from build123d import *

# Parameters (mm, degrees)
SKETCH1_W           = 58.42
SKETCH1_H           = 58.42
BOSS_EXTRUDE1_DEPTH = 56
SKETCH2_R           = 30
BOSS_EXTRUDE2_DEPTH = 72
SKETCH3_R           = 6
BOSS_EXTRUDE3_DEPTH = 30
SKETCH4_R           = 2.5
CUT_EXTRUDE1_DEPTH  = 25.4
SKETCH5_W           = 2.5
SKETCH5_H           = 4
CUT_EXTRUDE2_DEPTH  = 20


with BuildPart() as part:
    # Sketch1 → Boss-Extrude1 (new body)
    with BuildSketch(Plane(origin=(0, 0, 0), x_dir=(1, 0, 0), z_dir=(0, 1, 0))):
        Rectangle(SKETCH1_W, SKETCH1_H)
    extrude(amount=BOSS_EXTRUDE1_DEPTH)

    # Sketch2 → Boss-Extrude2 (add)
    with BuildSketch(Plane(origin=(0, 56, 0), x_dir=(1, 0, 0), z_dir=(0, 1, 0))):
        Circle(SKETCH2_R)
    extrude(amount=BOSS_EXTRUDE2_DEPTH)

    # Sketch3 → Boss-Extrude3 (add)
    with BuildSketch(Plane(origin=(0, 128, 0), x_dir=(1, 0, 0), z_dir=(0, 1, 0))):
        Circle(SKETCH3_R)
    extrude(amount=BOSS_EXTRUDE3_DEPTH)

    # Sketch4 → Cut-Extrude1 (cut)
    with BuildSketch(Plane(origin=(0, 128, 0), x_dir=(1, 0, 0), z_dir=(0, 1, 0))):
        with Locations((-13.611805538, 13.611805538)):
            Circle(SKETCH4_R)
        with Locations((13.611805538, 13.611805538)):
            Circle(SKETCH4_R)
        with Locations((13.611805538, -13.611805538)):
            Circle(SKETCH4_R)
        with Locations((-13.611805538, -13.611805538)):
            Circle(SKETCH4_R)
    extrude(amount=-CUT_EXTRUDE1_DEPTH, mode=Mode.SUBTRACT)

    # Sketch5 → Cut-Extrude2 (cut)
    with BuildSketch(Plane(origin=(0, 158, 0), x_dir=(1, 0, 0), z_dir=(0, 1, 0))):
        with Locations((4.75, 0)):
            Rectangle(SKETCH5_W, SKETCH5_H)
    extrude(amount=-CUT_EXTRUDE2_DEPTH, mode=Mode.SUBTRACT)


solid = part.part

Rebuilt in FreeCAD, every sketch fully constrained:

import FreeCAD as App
import Part
import Sketcher

V = App.Vector
Q = App.Units.Quantity


def add_polygon(sketch, points):
    """Adds a closed chain of lines whose ends are joined by coincident constraints."""
    first, n = sketch.GeometryCount, len(points)
    for a, b in zip(points, points[1:] + points[:1]):
        sketch.addGeometry(Part.LineSegment(App.Vector(*a, 0), App.Vector(*b, 0)), False)
    for i in range(n):
        sketch.addConstraint(Sketcher.Constraint("Coincident", first + i, 2, first + (i + 1) % n, 1))

doc = App.newDocument("Part")
body = doc.addObject("PartDesign::Body", "Body")

sketch1 = body.newObject("Sketcher::SketchObject", "Sketch")
sketch1.AttachmentSupport = (doc.getObject("XZ_Plane"), [""])
sketch1.MapMode = "FlatFace"
add_polygon(sketch1, [(-29, -29), (-29, 29), (29, 29), (29, -29)])
sketch1.addConstraint(Sketcher.Constraint("Vertical", 0))
sketch1.addConstraint(Sketcher.Constraint("Horizontal", 1))
sketch1.addConstraint(Sketcher.Constraint("Vertical", 2))
sketch1.addConstraint(Sketcher.Constraint("Horizontal", 3))
sketch1.addConstraint(Sketcher.Constraint("Symmetric", 0, 2, 2, 2, -1, 1))
sketch1.addConstraint(Sketcher.Constraint("Equal", 3, 0))
sketch1.addConstraint(Sketcher.Constraint("DistanceX", 1, 1, 1, 2, Q("58.42 mm")))
pad1 = body.newObject("PartDesign::Pad", "Pad")
pad1.Profile = sketch1
pad1.Length = 56
pad1.Reversed = True

sketch2 = body.newObject("Sketcher::SketchObject", "Sketch001")
sketch2.AttachmentSupport = (doc.getObject("XZ_Plane"), [""])
sketch2.MapMode = "FlatFace"
sketch2.AttachmentOffset = App.Placement(V(0, 0, -56), App.Rotation())
sketch2.addGeometry(Part.Circle(V(0, 0, 0), V(0, 0, 1), 30), False)
sketch2.addConstraint(Sketcher.Constraint("Coincident", 0, 3, -1, 1))
sketch2.addConstraint(Sketcher.Constraint("Diameter", 0, Q("60 mm")))
pad2 = body.newObject("PartDesign::Pad", "Pad001")
pad2.Profile = sketch2
pad2.Length = 72
pad2.Reversed = True

sketch3 = body.newObject("Sketcher::SketchObject", "Sketch002")
sketch3.AttachmentSupport = (doc.getObject("XZ_Plane"), [""])
sketch3.MapMode = "FlatFace"
sketch3.AttachmentOffset = App.Placement(V(0, 0, -128), App.Rotation())
sketch3.addGeometry(Part.Circle(V(0, 0, 0), V(0, 0, 1), 6), False)
sketch3.addConstraint(Sketcher.Constraint("Coincident", 0, 3, -1, 1))
sketch3.addConstraint(Sketcher.Constraint("Diameter", 0, Q("12 mm")))
pad3 = body.newObject("PartDesign::Pad", "Pad002")
pad3.Profile = sketch3
pad3.Length = 30
pad3.Reversed = True

sketch4 = body.newObject("Sketcher::SketchObject", "Sketch003")
sketch4.AttachmentSupport = (doc.getObject("XZ_Plane"), [""])
sketch4.MapMode = "FlatFace"
sketch4.AttachmentOffset = App.Placement(V(0, 0, -128), App.Rotation())
sketch4.addGeometry(Part.Circle(V(-13.6, -13.6, 0), V(0, 0, 1), 2.5), False)
sketch4.addGeometry(Part.Circle(V(13.6, -13.6, 0), V(0, 0, 1), 2.5), False)
sketch4.addGeometry(Part.Circle(V(13.6, 13.6, 0), V(0, 0, 1), 2.5), False)
sketch4.addGeometry(Part.Circle(V(-13.6, 13.6, 0), V(0, 0, 1), 2.5), False)
sketch4.addConstraint(Sketcher.Constraint("Equal", 0, 1))
sketch4.addConstraint(Sketcher.Constraint("Equal", 1, 2))
sketch4.addConstraint(Sketcher.Constraint("Equal", 2, 3))
sketch4.addConstraint(Sketcher.Constraint("Symmetric", 0, 3, 2, 3, -1, 1))
sketch4.addConstraint(Sketcher.Constraint("Symmetric", 1, 3, 3, 3, -1, 1))
sketch4.addConstraint(Sketcher.Constraint("Symmetric", 0, 3, 1, 3, -2))
sketch4.addConstraint(Sketcher.Constraint("Diameter", 0, Q("5 mm")))
sketch4.addConstraint(Sketcher.Constraint("DistanceX", 0, 3, 1, 3, Q("27.223611 mm")))
sketch4.addConstraint(Sketcher.Constraint("DistanceY", 1, 3, 2, 3, Q("27.223611 mm")))
pocket1 = body.newObject("PartDesign::Pocket", "Pocket")
pocket1.Profile = sketch4
pocket1.Length = 25.4
pocket1.Reversed = True

sketch5 = body.newObject("Sketcher::SketchObject", "Sketch004")
sketch5.AttachmentSupport = (doc.getObject("XZ_Plane"), [""])
sketch5.MapMode = "FlatFace"
sketch5.AttachmentOffset = App.Placement(V(0, 0, -158), App.Rotation())
add_polygon(sketch5, [(3.5, -2), (3.5, 2), (6, 2), (6, -2)])
sketch5.addConstraint(Sketcher.Constraint("Vertical", 0))
sketch5.addConstraint(Sketcher.Constraint("Horizontal", 1))
sketch5.addConstraint(Sketcher.Constraint("Vertical", 2))
sketch5.addConstraint(Sketcher.Constraint("Horizontal", 3))
sketch5.addConstraint(Sketcher.Constraint("DistanceY", 0, 1, 0, 2, Q("4 mm")))
sketch5.addConstraint(Sketcher.Constraint("DistanceX", 1, 1, 1, 2, Q("2.5 mm")))
sketch5.addConstraint(Sketcher.Constraint("DistanceY", -1, 1, 0, 2, Q("2 mm")))
sketch5.addConstraint(Sketcher.Constraint("DistanceX", -1, 1, 1, 2, Q("6 mm")))
pocket2 = body.newObject("PartDesign::Pocket", "Pocket001")
pocket2.Profile = sketch5
pocket2.Length = 20
pocket2.Reversed = True

doc.recompute()
